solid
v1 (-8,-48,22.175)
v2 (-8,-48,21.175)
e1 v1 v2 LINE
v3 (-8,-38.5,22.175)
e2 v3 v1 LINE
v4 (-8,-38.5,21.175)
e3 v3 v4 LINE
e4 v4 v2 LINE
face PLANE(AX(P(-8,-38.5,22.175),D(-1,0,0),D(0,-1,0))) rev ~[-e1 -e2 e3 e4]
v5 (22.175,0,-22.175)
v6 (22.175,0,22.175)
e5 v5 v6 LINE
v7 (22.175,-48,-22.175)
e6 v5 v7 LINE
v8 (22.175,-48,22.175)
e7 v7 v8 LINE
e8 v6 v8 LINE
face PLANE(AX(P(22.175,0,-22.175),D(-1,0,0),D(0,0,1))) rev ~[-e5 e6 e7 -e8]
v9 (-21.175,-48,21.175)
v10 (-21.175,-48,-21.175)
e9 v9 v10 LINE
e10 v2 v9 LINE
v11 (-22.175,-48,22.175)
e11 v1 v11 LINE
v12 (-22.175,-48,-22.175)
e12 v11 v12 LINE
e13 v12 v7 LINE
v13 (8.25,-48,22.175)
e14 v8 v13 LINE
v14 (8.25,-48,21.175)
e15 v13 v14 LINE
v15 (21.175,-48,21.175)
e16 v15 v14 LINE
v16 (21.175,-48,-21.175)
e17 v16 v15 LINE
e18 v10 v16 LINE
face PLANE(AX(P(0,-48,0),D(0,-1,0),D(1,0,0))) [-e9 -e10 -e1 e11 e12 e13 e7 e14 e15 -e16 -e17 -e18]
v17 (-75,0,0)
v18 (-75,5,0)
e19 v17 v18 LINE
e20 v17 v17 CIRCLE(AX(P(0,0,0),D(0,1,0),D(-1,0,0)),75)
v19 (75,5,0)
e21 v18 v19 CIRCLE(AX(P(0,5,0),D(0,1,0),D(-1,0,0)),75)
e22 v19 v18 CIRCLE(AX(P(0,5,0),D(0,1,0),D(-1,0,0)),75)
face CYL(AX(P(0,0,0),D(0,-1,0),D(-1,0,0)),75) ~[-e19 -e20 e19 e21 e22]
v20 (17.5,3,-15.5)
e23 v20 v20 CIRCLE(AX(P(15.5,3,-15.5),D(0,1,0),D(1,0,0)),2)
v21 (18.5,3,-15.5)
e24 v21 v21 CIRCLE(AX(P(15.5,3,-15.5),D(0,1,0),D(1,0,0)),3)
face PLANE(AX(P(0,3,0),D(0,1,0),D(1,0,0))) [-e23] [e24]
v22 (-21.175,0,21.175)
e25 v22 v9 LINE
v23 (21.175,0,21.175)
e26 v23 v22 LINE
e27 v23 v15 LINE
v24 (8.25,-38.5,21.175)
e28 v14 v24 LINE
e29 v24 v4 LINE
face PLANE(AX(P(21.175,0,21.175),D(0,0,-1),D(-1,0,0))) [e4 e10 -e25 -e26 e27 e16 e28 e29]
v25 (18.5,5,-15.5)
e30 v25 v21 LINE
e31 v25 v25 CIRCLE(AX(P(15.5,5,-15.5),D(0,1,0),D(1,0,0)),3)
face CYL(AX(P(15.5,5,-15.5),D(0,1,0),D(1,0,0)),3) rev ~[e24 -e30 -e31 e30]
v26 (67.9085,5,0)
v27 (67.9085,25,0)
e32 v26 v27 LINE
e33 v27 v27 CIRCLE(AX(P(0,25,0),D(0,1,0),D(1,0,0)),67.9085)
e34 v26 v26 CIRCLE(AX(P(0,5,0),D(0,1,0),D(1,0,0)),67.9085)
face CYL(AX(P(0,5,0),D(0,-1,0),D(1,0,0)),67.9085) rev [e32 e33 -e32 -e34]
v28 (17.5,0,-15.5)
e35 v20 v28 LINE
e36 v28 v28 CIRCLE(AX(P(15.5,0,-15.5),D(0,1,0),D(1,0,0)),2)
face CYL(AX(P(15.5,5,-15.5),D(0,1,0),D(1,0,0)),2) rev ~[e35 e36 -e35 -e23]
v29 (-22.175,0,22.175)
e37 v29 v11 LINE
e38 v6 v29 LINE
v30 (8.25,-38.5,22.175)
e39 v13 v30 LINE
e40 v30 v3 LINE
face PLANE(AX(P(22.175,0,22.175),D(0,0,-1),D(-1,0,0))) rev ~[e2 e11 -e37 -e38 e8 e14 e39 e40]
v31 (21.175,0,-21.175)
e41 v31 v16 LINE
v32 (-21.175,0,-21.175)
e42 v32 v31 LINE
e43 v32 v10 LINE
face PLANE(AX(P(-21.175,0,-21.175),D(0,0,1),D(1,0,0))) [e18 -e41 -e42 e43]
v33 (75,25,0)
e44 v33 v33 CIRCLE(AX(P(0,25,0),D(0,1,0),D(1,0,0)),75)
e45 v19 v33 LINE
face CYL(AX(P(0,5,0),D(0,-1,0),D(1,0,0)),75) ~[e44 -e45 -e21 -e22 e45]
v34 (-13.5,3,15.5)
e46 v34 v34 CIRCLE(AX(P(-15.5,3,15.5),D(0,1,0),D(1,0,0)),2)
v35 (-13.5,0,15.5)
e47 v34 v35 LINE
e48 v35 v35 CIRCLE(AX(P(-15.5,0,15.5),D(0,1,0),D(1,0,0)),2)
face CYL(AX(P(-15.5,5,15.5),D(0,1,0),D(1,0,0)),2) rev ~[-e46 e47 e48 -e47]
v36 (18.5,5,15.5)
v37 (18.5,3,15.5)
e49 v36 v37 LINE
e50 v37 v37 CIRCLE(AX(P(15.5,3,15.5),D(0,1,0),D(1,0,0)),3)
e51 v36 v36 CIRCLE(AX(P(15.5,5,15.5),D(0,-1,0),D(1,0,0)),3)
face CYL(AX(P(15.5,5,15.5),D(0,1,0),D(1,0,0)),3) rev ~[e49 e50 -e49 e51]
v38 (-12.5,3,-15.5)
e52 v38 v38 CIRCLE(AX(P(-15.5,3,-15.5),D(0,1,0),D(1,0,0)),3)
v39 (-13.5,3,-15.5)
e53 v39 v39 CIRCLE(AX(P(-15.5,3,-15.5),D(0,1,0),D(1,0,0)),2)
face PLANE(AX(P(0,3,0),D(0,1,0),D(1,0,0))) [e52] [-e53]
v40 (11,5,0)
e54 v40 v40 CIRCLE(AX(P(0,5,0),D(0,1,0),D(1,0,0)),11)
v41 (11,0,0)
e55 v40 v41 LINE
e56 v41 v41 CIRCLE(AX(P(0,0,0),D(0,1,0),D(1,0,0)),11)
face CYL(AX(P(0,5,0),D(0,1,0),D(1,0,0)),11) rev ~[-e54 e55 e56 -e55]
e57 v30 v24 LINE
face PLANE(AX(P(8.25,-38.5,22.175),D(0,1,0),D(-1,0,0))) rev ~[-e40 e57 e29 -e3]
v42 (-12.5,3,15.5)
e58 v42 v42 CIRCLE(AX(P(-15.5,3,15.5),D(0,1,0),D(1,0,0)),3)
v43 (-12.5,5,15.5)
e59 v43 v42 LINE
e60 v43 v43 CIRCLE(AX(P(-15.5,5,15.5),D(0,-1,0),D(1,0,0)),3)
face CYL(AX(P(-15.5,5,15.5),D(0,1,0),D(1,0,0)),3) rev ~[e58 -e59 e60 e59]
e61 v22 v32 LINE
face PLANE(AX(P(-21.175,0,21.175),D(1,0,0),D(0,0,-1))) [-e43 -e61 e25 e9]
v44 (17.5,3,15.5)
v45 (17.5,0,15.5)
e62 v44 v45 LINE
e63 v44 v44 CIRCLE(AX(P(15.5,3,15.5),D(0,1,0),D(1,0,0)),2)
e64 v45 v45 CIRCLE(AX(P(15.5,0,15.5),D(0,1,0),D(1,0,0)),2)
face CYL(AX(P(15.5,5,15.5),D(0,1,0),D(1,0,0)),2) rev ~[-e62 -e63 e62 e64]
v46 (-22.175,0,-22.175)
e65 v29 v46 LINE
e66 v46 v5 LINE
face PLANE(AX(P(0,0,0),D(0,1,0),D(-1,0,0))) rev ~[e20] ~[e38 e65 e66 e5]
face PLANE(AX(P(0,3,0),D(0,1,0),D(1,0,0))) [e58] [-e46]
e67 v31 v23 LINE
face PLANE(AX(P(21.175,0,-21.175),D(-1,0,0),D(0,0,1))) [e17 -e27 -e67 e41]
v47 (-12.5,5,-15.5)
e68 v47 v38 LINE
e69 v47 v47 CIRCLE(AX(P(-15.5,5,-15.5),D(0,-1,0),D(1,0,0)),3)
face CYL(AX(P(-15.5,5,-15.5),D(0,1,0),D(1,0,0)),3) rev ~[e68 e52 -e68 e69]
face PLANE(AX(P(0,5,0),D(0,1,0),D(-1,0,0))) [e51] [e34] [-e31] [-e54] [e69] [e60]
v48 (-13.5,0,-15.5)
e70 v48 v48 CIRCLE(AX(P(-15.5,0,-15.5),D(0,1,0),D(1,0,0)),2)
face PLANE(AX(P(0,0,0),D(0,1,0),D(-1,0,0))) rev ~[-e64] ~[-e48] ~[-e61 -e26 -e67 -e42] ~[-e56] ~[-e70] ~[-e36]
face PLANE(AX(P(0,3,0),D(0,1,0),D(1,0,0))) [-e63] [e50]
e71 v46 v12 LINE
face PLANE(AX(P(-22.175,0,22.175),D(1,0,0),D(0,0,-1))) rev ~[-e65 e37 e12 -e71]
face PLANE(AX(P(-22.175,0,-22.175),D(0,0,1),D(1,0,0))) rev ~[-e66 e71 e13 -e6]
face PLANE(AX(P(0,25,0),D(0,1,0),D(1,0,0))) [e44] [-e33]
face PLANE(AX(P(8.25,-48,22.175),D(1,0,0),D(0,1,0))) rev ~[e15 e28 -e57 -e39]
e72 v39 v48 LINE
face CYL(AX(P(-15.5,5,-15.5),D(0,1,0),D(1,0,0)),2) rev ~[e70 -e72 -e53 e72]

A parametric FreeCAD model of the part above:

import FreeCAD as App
import Part
import Sketcher
from FreeCAD import Vector
Q = App.Units.Quantity

doc = App.newDocument("Part")
params = doc.addObject("Spreadsheet::Sheet", "Params")
for row, (alias, value) in enumerate([
    ("sketch1_diameter", "150 mm"),
    ("pad1_length", "5 mm"),
    ("sketch2_width", "44.35 mm"),
    ("sketch2_width2", "42.35 mm"),
    ("pad2_length", "48 mm"),
    ("sketch3_height", "9.5 mm"),
    ("sketch3_width", "16.25 mm"),
    ("pocket1_length", "1 mm"),
    ("sketch4_diameter", "22 mm"),
    ("sketch4_diameter2", "4 mm"),
    ("pocket2_length", "5 mm"),
    ("sketch5_diameter", "6 mm"),
    ("pocket3_length", "2 mm"),
    ("sketch6_diameter", "150 mm"),
    ("pad3_length", "20 mm"),
], start=1):
    params.set(f"A{row}", alias)
    params.set(f"B{row}", "=" + value)
    params.setAlias(f"B{row}", alias)

body = doc.addObject("PartDesign::Body", "Body")

sketch1 = body.newObject("Sketcher::SketchObject", "Sketch")
sketch1.AttachmentSupport = (doc.getObject("XZ_Plane"), [""])
sketch1.MapMode = "FlatFace"
sketch1.addGeometry(Part.Circle(Vector(0, 0, 0), Vector(0, 0, 1), 75), False)
sketch1.addConstraint([
    Sketcher.Constraint("Coincident", 0, 3, -1, 1),
    Sketcher.Constraint("Diameter", 0, Q("150 mm")),
])
sketch1.setExpression("Constraints[1]", "Params.sketch1_diameter")
pad1 = body.newObject("PartDesign::Pad", "Pad")
pad1.Profile = sketch1
pad1.setExpression("Length", "Params.pad1_length")
pad1.Reversed = True

sketch2 = body.newObject("Sketcher::SketchObject", "Sketch001")
sketch2.AttachmentSupport = (doc.getObject("XZ_Plane"), [""])
sketch2.MapMode = "FlatFace"
sketch2.addGeometry([
    Part.LineSegment(Vector(22.175, -22.175, 0), Vector(22.175, 22.175, 0)),
    Part.LineSegment(Vector(22.175, 22.175, 0), Vector(-22.175, 22.175, 0)),
    Part.LineSegment(Vector(-22.175, 22.175, 0), Vector(-22.175, -22.175, 0)),
    Part.LineSegment(Vector(-22.175, -22.175, 0), Vector(22.175, -22.175, 0)),
    Part.LineSegment(Vector(-21.175, 21.175, 0), Vector(21.175, 21.175, 0)),
    Part.LineSegment(Vector(21.175, 21.175, 0), Vector(21.175, -21.175, 0)),
    Part.LineSegment(Vector(21.175, -21.175, 0), Vector(-21.175, -21.175, 0)),
    Part.LineSegment(Vector(-21.175, -21.175, 0), Vector(-21.175, 21.175, 0)),
], False)
sketch2.addConstraint([
    Sketcher.Constraint("Coincident", 0, 2, 1, 1),
    Sketcher.Constraint("Coincident", 1, 2, 2, 1),
    Sketcher.Constraint("Coincident", 2, 2, 3, 1),
    Sketcher.Constraint("Coincident", 3, 2, 0, 1),
    Sketcher.Constraint("Coincident", 4, 2, 5, 1),
    Sketcher.Constraint("Coincident", 5, 2, 6, 1),
    Sketcher.Constraint("Coincident", 6, 2, 7, 1),
    Sketcher.Constraint("Coincident", 7, 2, 4, 1),
    Sketcher.Constraint("Vertical", 0),
    Sketcher.Constraint("Horizontal", 1),
    Sketcher.Constraint("Vertical", 2),
    Sketcher.Constraint("Horizontal", 3),
    Sketcher.Constraint("Horizontal", 4),
    Sketcher.Constraint("Vertical", 5),
    Sketcher.Constraint("Horizontal", 6),
    Sketcher.Constraint("Vertical", 7),
    Sketcher.Constraint("Symmetric", 0, 2, 2, 2, -1, 1),
    Sketcher.Constraint("Symmetric", 4, 2, 6, 2, -1, 1),
    Sketcher.Constraint("Equal", 3, 0),
    Sketcher.Constraint("Equal", 6, 5),
    Sketcher.Constraint("DistanceX", 1, 2, 1, 1, Q("44.35 mm")),
    Sketcher.Constraint("DistanceX", 4, 1, 4, 2, Q("42.35 mm")),
])
sketch2.setExpression("Constraints[20]", "Params.sketch2_width")
sketch2.setExpression("Constraints[21]", "Params.sketch2_width2")
pad2 = body.newObject("PartDesign::Pad", "Pad001")
pad2.Profile = sketch2
pad2.setExpression("Length", "Params.pad2_length")

sketch3 = body.newObject("Sketcher::SketchObject", "Sketch002")
sketch3.AttachmentSupport = (doc.getObject("XY_Plane"), [""])
sketch3.MapMode = "FlatFace"
sketch3.AttachmentOffset = App.Placement(Vector(0, 0, 22.175), App.Rotation())
sketch3.addGeometry([
    Part.LineSegment(Vector(-8, -48, 0), Vector(8.25, -48, 0)),
    Part.LineSegment(Vector(8.25, -48, 0), Vector(8.25, -38.5, 0)),
    Part.LineSegment(Vector(8.25, -38.5, 0), Vector(-8, -38.5, 0)),
    Part.LineSegment(Vector(-8, -38.5, 0), Vector(-8, -48, 0)),
], False)
sketch3.addConstraint([
    Sketcher.Constraint("Coincident", 0, 2, 1, 1),
    Sketcher.Constraint("Coincident", 1, 2, 2, 1),
    Sketcher.Constraint("Coincident", 2, 2, 3, 1),
    Sketcher.Constraint("Coincident", 3, 2, 0, 1),
    Sketcher.Constraint("Horizontal", 0),
    Sketcher.Constraint("Vertical", 1),
    Sketcher.Constraint("Horizontal", 2),
    Sketcher.Constraint("Vertical", 3),
    Sketcher.Constraint("DistanceY", 1, 1, 1, 2, Q("9.5 mm")),
    Sketcher.Constraint("DistanceX", 0, 1, 0, 2, Q("16.25 mm")),
    Sketcher.Constraint("DistanceX", -1, 1, 0, 2, Q("8.25 mm")),
    Sketcher.Constraint("DistanceY", 0, 2, -1, 1, Q("48 mm")),
])
sketch3.setExpression("Constraints[8]", "Params.sketch3_height")
sketch3.setExpression("Constraints[9]", "Params.sketch3_width")
pocket1 = body.newObject("PartDesign::Pocket", "Pocket")
pocket1.Profile = sketch3
pocket1.setExpression("Length", "Params.pocket1_length")

sketch4 = body.newObject("Sketcher::SketchObject", "Sketch003")
sketch4.AttachmentSupport = (doc.getObject("XZ_Plane"), [""])
sketch4.MapMode = "FlatFace"
sketch4.AttachmentOffset = App.Placement(Vector(0, 0, -5), App.Rotation())
sketch4.addGeometry([
    Part.Circle(Vector(0, 0, 0), Vector(0, 0, 1), 11),
    Part.Circle(Vector(-15.5, 15.5, 0), Vector(0, 0, 1), 2),
    Part.Circle(Vector(15.5, 15.5, 0), Vector(0, 0, 1), 2),
    Part.Circle(Vector(-15.5, -15.5, 0), Vector(0, 0, 1), 2),
    Part.Circle(Vector(15.5, -15.5, 0), Vector(0, 0, 1), 2),
], False)
sketch4.addConstraint([
    Sketcher.Constraint("Coincident", 0, 3, -1, 1),
    Sketcher.Constraint("Equal", 1, 2),
    Sketcher.Constraint("Equal", 2, 3),
    Sketcher.Constraint("Equal", 3, 4),
    Sketcher.Constraint("Symmetric", 2, 3, 3, 3, -1, 1),
    Sketcher.Constraint("Symmetric", 1, 3, 4, 3, -1, 1),
    Sketcher.Constraint("Symmetric", 1, 3, 2, 3, -2),
    Sketcher.Constraint("Diameter", 0, Q("22 mm")),
    Sketcher.Constraint("Diameter", 1, Q("4 mm")),
    Sketcher.Constraint("DistanceX", 1, 3, 2, 3, Q("31 mm")),
    Sketcher.Constraint("DistanceY", 3, 3, 1, 3, Q("31 mm")),
])
sketch4.setExpression("Constraints[7]", "Params.sketch4_diameter")
sketch4.setExpression("Constraints[8]", "Params.sketch4_diameter2")
pocket2 = body.newObject("PartDesign::Pocket", "Pocket001")
pocket2.Profile = sketch4
pocket2.setExpression("Length", "Params.pocket2_length")
pocket2.Reversed = True

sketch5 = body.newObject("Sketcher::SketchObject", "Sketch004")
sketch5.AttachmentSupport = (doc.getObject("XZ_Plane"), [""])
sketch5.MapMode = "FlatFace"
sketch5.AttachmentOffset = App.Placement(Vector(0, 0, -5), App.Rotation())
sketch5.addGeometry([
    Part.Circle(Vector(15.5, -15.5, 0), Vector(0, 0, 1), 3),
    Part.Circle(Vector(-15.5, -15.5, 0), Vector(0, 0, 1), 3),
    Part.Circle(Vector(15.5, 15.5, 0), Vector(0, 0, 1), 3),
    Part.Circle(Vector(-15.5, 15.5, 0), Vector(0, 0, 1), 3),
], False)
sketch5.addConstraint([
    Sketcher.Constraint("Equal", 0, 1),
    Sketcher.Constraint("Equal", 1, 2),
    Sketcher.Constraint("Equal", 2, 3),
    Sketcher.Constraint("Symmetric", 1, 3, 2, 3, -1, 1),
    Sketcher.Constraint("Symmetric", 0, 3, 3, 3, -1, 1),
    Sketcher.Constraint("Symmetric", 0, 3, 1, 3, -2),
    Sketcher.Constraint("Diameter", 0, Q("6 mm")),
    Sketcher.Constraint("DistanceX", 1, 3, 0, 3, Q("31 mm")),
    Sketcher.Constraint("DistanceY", 0, 3, 2, 3, Q("31 mm")),
])
sketch5.setExpression("Constraints[6]", "Params.sketch5_diameter")
pocket3 = body.newObject("PartDesign::Pocket", "Pocket002")
pocket3.Profile = sketch5
pocket3.setExpression("Length", "Params.pocket3_length")
pocket3.Reversed = True

sketch6 = body.newObject("Sketcher::SketchObject", "Sketch005")
sketch6.AttachmentSupport = (doc.getObject("XZ_Plane"), [""])
sketch6.MapMode = "FlatFace"
sketch6.AttachmentOffset = App.Placement(Vector(0, 0, -5), App.Rotation())
sketch6.addGeometry([
    Part.Circle(Vector(0, 0, 0), Vector(0, 0, 1), 75),
    Part.Circle(Vector(0, 0, 0), Vector(0, 0, 1), 67.9085),
], False)
sketch6.addConstraint([
    Sketcher.Constraint("Coincident", 0, 3, -1, 1),
    Sketcher.Constraint("Coincident", 1, 3, -1, 1),
    Sketcher.Constraint("Diameter", 0, Q("150 mm")),
    Sketcher.Constraint("Diameter", 1, Q("135.817 mm")),
])
sketch6.setExpression("Constraints[2]", "Params.sketch6_diameter")
pad3 = body.newObject("PartDesign::Pad", "Pad002")
pad3.Profile = sketch6
pad3.setExpression("Length", "Params.pad3_length")
pad3.Reversed = True

doc.recompute()
